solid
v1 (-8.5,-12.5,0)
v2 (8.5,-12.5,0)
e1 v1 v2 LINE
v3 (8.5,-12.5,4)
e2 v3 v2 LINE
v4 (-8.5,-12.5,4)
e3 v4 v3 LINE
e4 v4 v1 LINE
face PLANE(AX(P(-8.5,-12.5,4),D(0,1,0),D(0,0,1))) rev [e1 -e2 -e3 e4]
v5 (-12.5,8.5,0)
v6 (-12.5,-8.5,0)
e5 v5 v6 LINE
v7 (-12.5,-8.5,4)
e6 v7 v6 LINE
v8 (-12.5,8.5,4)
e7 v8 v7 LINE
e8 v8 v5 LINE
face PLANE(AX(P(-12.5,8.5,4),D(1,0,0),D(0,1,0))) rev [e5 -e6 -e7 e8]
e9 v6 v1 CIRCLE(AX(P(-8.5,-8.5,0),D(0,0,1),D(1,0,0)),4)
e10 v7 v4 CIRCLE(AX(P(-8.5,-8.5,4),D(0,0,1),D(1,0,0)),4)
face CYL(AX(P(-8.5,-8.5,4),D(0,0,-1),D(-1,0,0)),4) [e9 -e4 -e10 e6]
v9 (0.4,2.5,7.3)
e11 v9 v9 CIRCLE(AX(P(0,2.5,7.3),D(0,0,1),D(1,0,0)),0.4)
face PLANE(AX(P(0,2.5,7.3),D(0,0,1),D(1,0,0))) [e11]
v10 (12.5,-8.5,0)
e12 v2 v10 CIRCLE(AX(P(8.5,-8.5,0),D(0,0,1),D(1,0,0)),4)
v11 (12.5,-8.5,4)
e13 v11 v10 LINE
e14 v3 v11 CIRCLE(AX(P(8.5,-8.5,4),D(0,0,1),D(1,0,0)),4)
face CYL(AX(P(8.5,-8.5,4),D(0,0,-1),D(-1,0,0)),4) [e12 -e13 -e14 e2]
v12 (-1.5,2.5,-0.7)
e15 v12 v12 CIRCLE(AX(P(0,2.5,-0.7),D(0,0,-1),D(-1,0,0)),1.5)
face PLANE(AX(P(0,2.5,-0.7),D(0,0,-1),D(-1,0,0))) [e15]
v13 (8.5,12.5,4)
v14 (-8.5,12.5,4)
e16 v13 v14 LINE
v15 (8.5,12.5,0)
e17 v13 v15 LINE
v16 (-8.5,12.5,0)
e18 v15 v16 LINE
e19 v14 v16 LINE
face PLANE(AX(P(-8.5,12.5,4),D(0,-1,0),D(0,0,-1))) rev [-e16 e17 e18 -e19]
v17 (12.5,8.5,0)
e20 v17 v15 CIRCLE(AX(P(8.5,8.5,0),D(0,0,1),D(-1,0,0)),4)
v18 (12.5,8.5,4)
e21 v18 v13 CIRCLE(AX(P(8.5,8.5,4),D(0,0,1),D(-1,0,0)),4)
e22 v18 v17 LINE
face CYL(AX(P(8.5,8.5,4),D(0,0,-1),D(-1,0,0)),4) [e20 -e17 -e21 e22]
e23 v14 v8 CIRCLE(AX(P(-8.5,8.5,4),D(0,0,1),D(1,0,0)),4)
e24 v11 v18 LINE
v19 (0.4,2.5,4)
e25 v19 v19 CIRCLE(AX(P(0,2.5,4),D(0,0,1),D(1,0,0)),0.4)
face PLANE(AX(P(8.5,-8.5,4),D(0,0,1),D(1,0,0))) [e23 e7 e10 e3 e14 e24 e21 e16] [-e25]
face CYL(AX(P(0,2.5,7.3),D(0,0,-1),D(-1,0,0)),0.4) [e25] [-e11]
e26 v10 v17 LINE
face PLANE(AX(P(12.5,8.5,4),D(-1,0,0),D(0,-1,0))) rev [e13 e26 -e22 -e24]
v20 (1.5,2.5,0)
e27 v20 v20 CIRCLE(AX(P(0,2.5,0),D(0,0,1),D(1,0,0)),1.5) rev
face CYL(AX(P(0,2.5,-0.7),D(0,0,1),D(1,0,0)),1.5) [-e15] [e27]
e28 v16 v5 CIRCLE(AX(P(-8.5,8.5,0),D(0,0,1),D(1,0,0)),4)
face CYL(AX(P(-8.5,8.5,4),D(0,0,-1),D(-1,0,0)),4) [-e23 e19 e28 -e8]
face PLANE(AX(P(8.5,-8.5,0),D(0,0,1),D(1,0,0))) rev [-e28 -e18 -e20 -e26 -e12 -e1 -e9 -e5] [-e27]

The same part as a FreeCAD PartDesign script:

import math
import FreeCAD as App
import Part
import Sketcher
from FreeCAD import Vector
Q = App.Units.Quantity

doc = App.newDocument("Part")
params = doc.addObject("Spreadsheet::Sheet", "Params")
for row, (alias, value) in enumerate([
    ("sketch1_radius", "4 mm"),
    ("sketch1_width", "17 mm"),
    ("pad1_length", "4 mm"),
    ("sketch2_diameter", "0.8 mm"),
    ("pad2_length", "3.3 mm"),
    ("sketch3_diameter", "3 mm"),
    ("pad3_length", "0.7 mm"),
], start=1):
    params.set(f"A{row}", alias)
    params.set(f"B{row}", "=" + value)
    params.setAlias(f"B{row}", alias)

body = doc.addObject("PartDesign::Body", "Body")

# Sketch on XY plane
sketch1 = body.newObject("Sketcher::SketchObject", "Sketch")
sketch1.AttachmentSupport = (doc.getObject("XY_Plane"), [""])
sketch1.MapMode = "FlatFace"
sketch1.addGeometry([
    Part.LineSegment(Vector(8.5, 12.5, 0), Vector(-8.5, 12.5, 0)),  # 0
    Part.ArcOfCircle(Part.Circle(Vector(-8.5, 8.5, 0), Vector(0, 0, 1), 4), math.radians(90), math.radians(180)),  # 1
    Part.LineSegment(Vector(-12.5, 8.5, 0), Vector(-12.5, -8.5, 0)),  # 2
    Part.ArcOfCircle(Part.Circle(Vector(-8.5, -8.5, 0), Vector(0, 0, 1), 4), math.radians(180), math.radians(270)),  # 3
    Part.LineSegment(Vector(-8.5, -12.5, 0), Vector(8.5, -12.5, 0)),  # 4
    Part.ArcOfCircle(Part.Circle(Vector(8.5, -8.5, 0), Vector(0, 0, 1), 4), math.radians(-90), math.radians(0)),  # 5
    Part.LineSegment(Vector(12.5, -8.5, 0), Vector(12.5, 8.5, 0)),  # 6
    Part.ArcOfCircle(Part.Circle(Vector(8.5, 8.5, 0), Vector(0, 0, 1), 4), math.radians(0), math.radians(90)),  # 7
], False)
sketch1.addConstraint([
    Sketcher.Constraint("Tangent", 0, 2, 1, 1),
    Sketcher.Constraint("Tangent", 1, 2, 2, 1),
    Sketcher.Constraint("Tangent", 2, 2, 3, 1),
    Sketcher.Constraint("Tangent", 3, 2, 4, 1),
    Sketcher.Constraint("Tangent", 4, 2, 5, 1),
    Sketcher.Constraint("Tangent", 5, 2, 6, 1),
    Sketcher.Constraint("Tangent", 6, 2, 7, 1),
    Sketcher.Constraint("Tangent", 7, 2, 0, 1),
    Sketcher.Constraint("Horizontal", 0),
    Sketcher.Constraint("Vertical", 2),
    Sketcher.Constraint("Horizontal", 4),
    Sketcher.Constraint("Vertical", 6),
    Sketcher.Constraint("Equal", 1, 3),
    Sketcher.Constraint("Equal", 3, 5),
    Sketcher.Constraint("Equal", 5, 7),
    Sketcher.Constraint("Symmetric", 1, 3, 5, 3, -1, 1),
    Sketcher.Constraint("Equal", 4, 2),
    Sketcher.Constraint("Radius", 1, Q("4 mm")),
    Sketcher.Constraint("DistanceX", 0, 2, 0, 1, Q("17 mm")),
])
sketch1.setExpression("Constraints[17]", "Params.sketch1_radius")
sketch1.setExpression("Constraints[18]", "Params.sketch1_width")
pad1 = body.newObject("PartDesign::Pad", "Pad")
pad1.Profile = sketch1
pad1.setExpression("Length", "Params.pad1_length")

# Sketch on XY plane
sketch2 = body.newObject("Sketcher::SketchObject", "Sketch001")
sketch2.AttachmentSupport = (doc.getObject("XY_Plane"), [""])
sketch2.MapMode = "FlatFace"
sketch2.AttachmentOffset = App.Placement(Vector(0, 0, 4), App.Rotation())
sketch2.addGeometry(Part.Circle(Vector(0, 2.5, 0), Vector(0, 0, 1), 0.4), False)
sketch2.addConstraint([
    Sketcher.Constraint("PointOnObject", 0, 3, -2),
    Sketcher.Constraint("Diameter", 0, Q("0.8 mm")),
    Sketcher.Constraint("DistanceY", -1, 1, 0, 3, Q("2.5 mm")),
])
sketch2.setExpression("Constraints[1]", "Params.sketch2_diameter")
pad2 = body.newObject("PartDesign::Pad", "Pad001")
pad2.Profile = sketch2
pad2.setExpression("Length", "Params.pad2_length")

# Sketch on XY plane
sketch3 = body.newObject("Sketcher::SketchObject", "Sketch002")
sketch3.AttachmentSupport = (doc.getObject("XY_Plane"), [""])
sketch3.MapMode = "FlatFace"
sketch3.addGeometry(Part.Circle(Vector(0, 2.5, 0), Vector(0, 0, 1), 1.5), False)
sketch3.addConstraint([
    Sketcher.Constraint("PointOnObject", 0, 3, -2),
    Sketcher.Constraint("Diameter", 0, Q("3 mm")),
    Sketcher.Constraint("DistanceY", -1, 1, 0, 3, Q("2.5 mm")),
])
sketch3.setExpression("Constraints[1]", "Params.sketch3_diameter")
pad3 = body.newObject("PartDesign::Pad", "Pad002")
pad3.Profile = sketch3
pad3.setExpression("Length", "Params.pad3_length")
pad3.Reversed = True

doc.recompute()
